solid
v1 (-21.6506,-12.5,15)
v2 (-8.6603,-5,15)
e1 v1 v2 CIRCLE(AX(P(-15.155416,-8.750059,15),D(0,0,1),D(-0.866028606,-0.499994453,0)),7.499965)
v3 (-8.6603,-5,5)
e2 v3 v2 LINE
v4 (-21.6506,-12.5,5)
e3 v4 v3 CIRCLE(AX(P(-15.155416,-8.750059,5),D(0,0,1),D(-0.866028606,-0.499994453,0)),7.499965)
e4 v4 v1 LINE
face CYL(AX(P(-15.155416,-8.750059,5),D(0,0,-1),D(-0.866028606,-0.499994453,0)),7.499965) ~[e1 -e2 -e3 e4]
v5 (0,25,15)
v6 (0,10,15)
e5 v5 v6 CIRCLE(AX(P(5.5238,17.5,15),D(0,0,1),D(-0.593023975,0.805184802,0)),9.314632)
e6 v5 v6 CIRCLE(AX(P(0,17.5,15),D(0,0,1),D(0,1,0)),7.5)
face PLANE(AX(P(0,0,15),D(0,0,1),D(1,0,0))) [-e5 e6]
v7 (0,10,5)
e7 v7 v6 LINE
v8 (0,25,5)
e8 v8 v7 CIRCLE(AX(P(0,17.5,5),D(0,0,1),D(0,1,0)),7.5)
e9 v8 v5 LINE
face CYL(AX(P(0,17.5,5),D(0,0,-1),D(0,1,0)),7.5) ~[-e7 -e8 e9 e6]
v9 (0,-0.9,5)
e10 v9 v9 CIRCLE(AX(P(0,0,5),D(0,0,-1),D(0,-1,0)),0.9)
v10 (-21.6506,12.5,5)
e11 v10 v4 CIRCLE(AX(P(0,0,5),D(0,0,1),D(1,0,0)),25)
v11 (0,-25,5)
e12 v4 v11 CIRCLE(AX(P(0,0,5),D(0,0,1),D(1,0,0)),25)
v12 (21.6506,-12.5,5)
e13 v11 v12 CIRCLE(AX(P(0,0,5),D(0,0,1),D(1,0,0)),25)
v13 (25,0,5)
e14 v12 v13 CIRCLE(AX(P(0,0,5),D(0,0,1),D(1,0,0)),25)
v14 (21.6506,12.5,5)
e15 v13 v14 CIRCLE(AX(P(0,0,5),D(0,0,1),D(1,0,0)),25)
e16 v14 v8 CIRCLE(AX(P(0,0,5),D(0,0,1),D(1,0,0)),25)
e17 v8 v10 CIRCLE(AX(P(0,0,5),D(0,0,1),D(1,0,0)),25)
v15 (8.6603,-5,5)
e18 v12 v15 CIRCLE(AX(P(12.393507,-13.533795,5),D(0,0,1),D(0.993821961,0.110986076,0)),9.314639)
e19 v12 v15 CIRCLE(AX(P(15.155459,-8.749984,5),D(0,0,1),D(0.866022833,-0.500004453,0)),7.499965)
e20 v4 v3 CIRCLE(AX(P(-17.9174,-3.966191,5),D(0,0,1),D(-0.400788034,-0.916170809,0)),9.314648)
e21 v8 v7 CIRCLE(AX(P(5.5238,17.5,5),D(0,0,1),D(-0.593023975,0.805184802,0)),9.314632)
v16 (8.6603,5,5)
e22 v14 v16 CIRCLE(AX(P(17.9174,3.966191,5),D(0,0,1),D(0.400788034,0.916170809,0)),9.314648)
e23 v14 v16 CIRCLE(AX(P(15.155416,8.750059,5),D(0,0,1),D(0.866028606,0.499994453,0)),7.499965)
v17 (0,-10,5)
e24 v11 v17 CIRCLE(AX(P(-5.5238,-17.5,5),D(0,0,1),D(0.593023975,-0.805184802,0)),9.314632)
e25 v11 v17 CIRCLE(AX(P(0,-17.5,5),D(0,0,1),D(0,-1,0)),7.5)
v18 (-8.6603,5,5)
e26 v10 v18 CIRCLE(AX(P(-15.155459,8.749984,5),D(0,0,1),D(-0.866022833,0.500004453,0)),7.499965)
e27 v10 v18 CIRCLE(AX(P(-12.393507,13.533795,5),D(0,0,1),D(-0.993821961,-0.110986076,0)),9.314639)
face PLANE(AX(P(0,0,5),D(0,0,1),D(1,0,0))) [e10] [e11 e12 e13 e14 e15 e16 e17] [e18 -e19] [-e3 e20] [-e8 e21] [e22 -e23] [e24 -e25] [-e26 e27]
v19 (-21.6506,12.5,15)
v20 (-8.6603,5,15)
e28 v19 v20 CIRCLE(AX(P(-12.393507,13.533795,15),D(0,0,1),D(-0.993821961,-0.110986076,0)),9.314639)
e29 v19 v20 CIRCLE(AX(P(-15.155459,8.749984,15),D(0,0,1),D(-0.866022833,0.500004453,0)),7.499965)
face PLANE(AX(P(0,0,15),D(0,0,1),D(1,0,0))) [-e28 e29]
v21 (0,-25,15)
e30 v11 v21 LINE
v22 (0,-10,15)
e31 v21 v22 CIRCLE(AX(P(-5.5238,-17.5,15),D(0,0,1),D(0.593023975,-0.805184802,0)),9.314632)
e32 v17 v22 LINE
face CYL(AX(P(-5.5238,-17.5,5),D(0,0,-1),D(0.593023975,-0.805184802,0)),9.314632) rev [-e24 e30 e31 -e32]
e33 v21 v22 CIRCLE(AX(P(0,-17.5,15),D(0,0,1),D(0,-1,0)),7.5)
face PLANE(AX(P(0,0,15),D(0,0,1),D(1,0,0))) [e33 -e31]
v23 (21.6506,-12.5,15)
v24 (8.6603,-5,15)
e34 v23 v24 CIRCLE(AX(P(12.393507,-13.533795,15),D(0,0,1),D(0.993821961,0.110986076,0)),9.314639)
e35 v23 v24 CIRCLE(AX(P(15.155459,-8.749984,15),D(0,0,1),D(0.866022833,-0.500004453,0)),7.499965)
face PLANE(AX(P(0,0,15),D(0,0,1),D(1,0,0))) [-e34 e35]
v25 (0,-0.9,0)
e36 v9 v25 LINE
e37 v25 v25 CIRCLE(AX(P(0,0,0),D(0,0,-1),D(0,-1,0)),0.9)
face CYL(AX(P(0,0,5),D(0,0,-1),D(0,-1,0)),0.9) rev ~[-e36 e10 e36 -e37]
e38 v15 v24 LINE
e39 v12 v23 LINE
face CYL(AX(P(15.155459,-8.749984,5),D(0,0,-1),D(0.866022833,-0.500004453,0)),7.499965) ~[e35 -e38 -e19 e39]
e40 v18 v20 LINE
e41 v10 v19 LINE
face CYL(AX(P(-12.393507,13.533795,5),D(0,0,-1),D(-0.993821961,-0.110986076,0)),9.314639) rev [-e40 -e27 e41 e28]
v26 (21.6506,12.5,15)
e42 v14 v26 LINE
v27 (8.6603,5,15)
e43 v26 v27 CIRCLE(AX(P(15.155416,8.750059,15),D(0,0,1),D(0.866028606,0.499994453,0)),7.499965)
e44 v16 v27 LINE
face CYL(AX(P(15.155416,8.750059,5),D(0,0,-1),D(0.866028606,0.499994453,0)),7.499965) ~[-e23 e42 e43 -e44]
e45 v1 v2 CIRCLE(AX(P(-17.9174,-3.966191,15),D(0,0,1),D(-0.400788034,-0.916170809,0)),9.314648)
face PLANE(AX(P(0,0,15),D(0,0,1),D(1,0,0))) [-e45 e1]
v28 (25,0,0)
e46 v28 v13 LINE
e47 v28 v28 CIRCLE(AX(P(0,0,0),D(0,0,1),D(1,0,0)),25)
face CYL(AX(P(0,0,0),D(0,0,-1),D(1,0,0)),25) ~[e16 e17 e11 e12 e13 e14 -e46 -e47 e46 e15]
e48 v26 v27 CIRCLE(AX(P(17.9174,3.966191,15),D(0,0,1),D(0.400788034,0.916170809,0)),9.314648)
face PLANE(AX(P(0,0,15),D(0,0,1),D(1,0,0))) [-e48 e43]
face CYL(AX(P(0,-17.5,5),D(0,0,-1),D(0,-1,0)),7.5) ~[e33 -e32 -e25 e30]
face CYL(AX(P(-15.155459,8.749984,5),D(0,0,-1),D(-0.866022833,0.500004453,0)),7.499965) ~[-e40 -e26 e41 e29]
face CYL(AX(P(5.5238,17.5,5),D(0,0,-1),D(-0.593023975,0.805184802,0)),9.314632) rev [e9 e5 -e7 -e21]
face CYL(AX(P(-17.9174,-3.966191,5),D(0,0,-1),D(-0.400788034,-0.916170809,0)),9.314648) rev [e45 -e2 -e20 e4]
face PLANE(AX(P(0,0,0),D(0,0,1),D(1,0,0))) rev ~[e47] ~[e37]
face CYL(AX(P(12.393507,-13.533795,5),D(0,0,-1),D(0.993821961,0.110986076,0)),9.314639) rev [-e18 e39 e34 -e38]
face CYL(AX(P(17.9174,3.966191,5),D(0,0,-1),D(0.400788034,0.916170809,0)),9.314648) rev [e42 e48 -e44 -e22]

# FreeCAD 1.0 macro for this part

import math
import FreeCAD as App
import Part
import Sketcher
Q = App.Units.Quantity

doc = App.newDocument("Part")
body = doc.addObject("PartDesign::Body", "Body")

# Sketch on XY plane
sketch1 = body.newObject("Sketcher::SketchObject", "Sketch")
sketch1.AttachmentSupport = (doc.getObject("XY_Plane"), [""])
sketch1.MapMode = "FlatFace"
sketch1.addGeometry(Part.Circle(App.Vector(0, 0, 0), App.Vector(0, 0, 1), 25), False)
sketch1.addConstraint(Sketcher.Constraint("Coincident", 0, 3, -1, 1))
sketch1.addConstraint(Sketcher.Constraint("Diameter", 0, Q("50 mm")))
pad1 = body.newObject("PartDesign::Pad", "Pad")
pad1.Profile = sketch1
pad1.Length = 5

# Sketch on XY plane
sketch2 = body.newObject("Sketcher::SketchObject", "Sketch001")
sketch2.AttachmentSupport = (doc.getObject("XY_Plane"), [""])
sketch2.MapMode = "FlatFace"
sketch2.AttachmentOffset = App.Placement(App.Vector(0, 0, 5), App.Rotation())
sketch2.addGeometry(Part.ArcOfCircle(Part.Circle(App.Vector(15, 9, 0), App.Vector(0, 0, 1), 8), math.radians(30), math.radians(210)), False)
sketch2.addGeometry(Part.ArcOfCircle(Part.Circle(App.Vector(18, 4, 0), App.Vector(0, 0, 1), 9), math.radians(66), math.radians(174)), False)
sketch2.addGeometry(Part.ArcOfCircle(Part.Circle(App.Vector(15, -9, 0), App.Vector(0, 0, 1), 8), math.radians(-30), math.radians(150)), False)
sketch2.addGeometry(Part.ArcOfCircle(Part.Circle(App.Vector(12, -14, 0), App.Vector(0, 0, 1), 9), math.radians(6), math.radians(114)), False)
sketch2.addGeometry(Part.ArcOfCircle(Part.Circle(App.Vector(0, 18, 0), App.Vector(0, 0, 1), 8), math.radians(90), math.radians(270)), False)
sketch2.addGeometry(Part.ArcOfCircle(Part.Circle(App.Vector(6, 18, 0), App.Vector(0, 0, 1), 9), math.radians(126), math.radians(234)), False)
sketch2.addGeometry(Part.ArcOfCircle(Part.Circle(App.Vector(0, -18, 0), App.Vector(0, 0, 1), 8), math.radians(-90), math.radians(90)), False)
sketch2.addGeometry(Part.ArcOfCircle(Part.Circle(App.Vector(-6, -18, 0), App.Vector(0, 0, 1), 9), math.radians(-54), math.radians(54)), False)
sketch2.addGeometry(Part.ArcOfCircle(Part.Circle(App.Vector(-15, 9, 0), App.Vector(0, 0, 1), 8), math.radians(150), math.radians(330)), False)
sketch2.addGeometry(Part.ArcOfCircle(Part.Circle(App.Vector(-12, 14, 0), App.Vector(0, 0, 1), 9), math.radians(-174), math.radians(-66)), False)
sketch2.addGeometry(Part.ArcOfCircle(Part.Circle(App.Vector(-15, -9, 0), App.Vector(0, 0, 1), 8), math.radians(-150), math.radians(30)), False)
sketch2.addGeometry(Part.ArcOfCircle(Part.Circle(App.Vector(-18, -4, 0), App.Vector(0, 0, 1), 9), math.radians(-114), math.radians(-6)), False)
sketch2.addConstraint(Sketcher.Constraint("Coincident", 0, 1, 1, 1))
sketch2.addConstraint(Sketcher.Constraint("Coincident", 1, 2, 0, 2))
sketch2.addConstraint(Sketcher.Constraint("Coincident", 2, 1, 3, 1))
sketch2.addConstraint(Sketcher.Constraint("Coincident", 3, 2, 2, 2))
sketch2.addConstraint(Sketcher.Constraint("Coincident", 4, 1, 5, 1))
sketch2.addConstraint(Sketcher.Constraint("Coincident", 5, 2, 4, 2))
sketch2.addConstraint(Sketcher.Constraint("Coincident", 6, 1, 7, 1))
sketch2.addConstraint(Sketcher.Constraint("Coincident", 7, 2, 6, 2))
sketch2.addConstraint(Sketcher.Constraint("Coincident", 8, 1, 9, 1))
sketch2.addConstraint(Sketcher.Constraint("Coincident", 9, 2, 8, 2))
sketch2.addConstraint(Sketcher.Constraint("Coincident", 10, 1, 11, 1))
sketch2.addConstraint(Sketcher.Constraint("Coincident", 11, 2, 10, 2))
sketch2.addConstraint(Sketcher.Constraint("Equal", 0, 2))
sketch2.addConstraint(Sketcher.Constraint("Equal", 1, 3))
sketch2.addConstraint(Sketcher.Constraint("Equal", 2, 4))
sketch2.addConstraint(Sketcher.Constraint("Equal", 3, 5))
sketch2.addConstraint(Sketcher.Constraint("Equal", 4, 6))
sketch2.addConstraint(Sketcher.Constraint("Equal", 5, 7))
sketch2.addConstraint(Sketcher.Constraint("Equal", 6, 8))
sketch2.addConstraint(Sketcher.Constraint("Equal", 7, 9))
sketch2.addConstraint(Sketcher.Constraint("Equal", 8, 10))
sketch2.addConstraint(Sketcher.Constraint("Equal", 9, 11))
sketch2.addConstraint(Sketcher.Constraint("Symmetric", 4, 3, 6, 3, -1, 1))
sketch2.addConstraint(Sketcher.Constraint("Symmetric", 5, 3, 7, 3, -1, 1))
sketch2.addConstraint(Sketcher.Constraint("Symmetric", 2, 3, 8, 3, -1, 1))
sketch2.addConstraint(Sketcher.Constraint("Symmetric", 3, 3, 9, 3, -1, 1))
sketch2.addConstraint(Sketcher.Constraint("Symmetric", 0, 3, 10, 3, -1, 1))
sketch2.addConstraint(Sketcher.Constraint("Symmetric", 1, 3, 11, 3, -1, 1))
sketch2.addConstraint(Sketcher.Constraint("Symmetric", 0, 3, 8, 3, -2))
sketch2.addConstraint(Sketcher.Constraint("PointOnObject", 4, 3, -2))
sketch2.addConstraint(Sketcher.Constraint("PointOnObject", 4, 1, -2))
sketch2.addConstraint(Sketcher.Constraint("PointOnObject", 5, 2, -2))
sketch2.addConstraint(Sketcher.Constraint("Horizontal", 0, 1, 8, 1))
sketch2.addConstraint(Sketcher.Constraint("Horizontal", 1, 2, 9, 2))
sketch2.addConstraint(Sketcher.Constraint("DistanceY", 1, 2, 4, 1, Q("20 mm")))
sketch2.addConstraint(Sketcher.Constraint("Radius", 0, Q("7.5 mm")))
sketch2.addConstraint(Sketcher.Constraint("DistanceY", -1, 1, 1, 2, Q("5 mm")))
sketch2.addConstraint(Sketcher.Constraint("DistanceY", 0, 1, 5, 3, Q("5 mm")))
sketch2.addConstraint(Sketcher.Constraint("Radius", 1, Q("9.3146 mm")))
sketch2.addConstraint(Sketcher.Constraint("DistanceY", 2, 3, 0, 3, Q("17.5 mm")))
sketch2.addConstraint(Sketcher.Constraint("DistanceX", 9, 3, 0, 3, Q("27.549 mm")))
pad2 = body.newObject("PartDesign::Pad", "Pad001")
pad2.Profile = sketch2
pad2.Length = 10

# Sketch on XY plane
sketch3 = body.newObject("Sketcher::SketchObject", "Sketch002")
sketch3.AttachmentSupport = (doc.getObject("XY_Plane"), [""])
sketch3.MapMode = "FlatFace"
sketch3.AttachmentOffset = App.Placement(App.Vector(0, 0, 5), App.Rotation())
sketch3.addGeometry(Part.Circle(App.Vector(0, 0, 0), App.Vector(0, 0, 1), 0.9), False)
sketch3.addConstraint(Sketcher.Constraint("Coincident", 0, 3, -1, 1))
sketch3.addConstraint(Sketcher.Constraint("Diameter", 0, Q("1.8 mm")))
doc.recompute()
hole = body.newObject("PartDesign::Hole", "Hole")
hole.Profile = sketch3
hole.ThreadType = "None"
hole.Diameter = 1.8
hole.DepthType = "Dimension"
hole.Depth = 8.8
hole.DrillPoint = "Angled"
hole.DrillPointAngle = 118

doc.recompute()
